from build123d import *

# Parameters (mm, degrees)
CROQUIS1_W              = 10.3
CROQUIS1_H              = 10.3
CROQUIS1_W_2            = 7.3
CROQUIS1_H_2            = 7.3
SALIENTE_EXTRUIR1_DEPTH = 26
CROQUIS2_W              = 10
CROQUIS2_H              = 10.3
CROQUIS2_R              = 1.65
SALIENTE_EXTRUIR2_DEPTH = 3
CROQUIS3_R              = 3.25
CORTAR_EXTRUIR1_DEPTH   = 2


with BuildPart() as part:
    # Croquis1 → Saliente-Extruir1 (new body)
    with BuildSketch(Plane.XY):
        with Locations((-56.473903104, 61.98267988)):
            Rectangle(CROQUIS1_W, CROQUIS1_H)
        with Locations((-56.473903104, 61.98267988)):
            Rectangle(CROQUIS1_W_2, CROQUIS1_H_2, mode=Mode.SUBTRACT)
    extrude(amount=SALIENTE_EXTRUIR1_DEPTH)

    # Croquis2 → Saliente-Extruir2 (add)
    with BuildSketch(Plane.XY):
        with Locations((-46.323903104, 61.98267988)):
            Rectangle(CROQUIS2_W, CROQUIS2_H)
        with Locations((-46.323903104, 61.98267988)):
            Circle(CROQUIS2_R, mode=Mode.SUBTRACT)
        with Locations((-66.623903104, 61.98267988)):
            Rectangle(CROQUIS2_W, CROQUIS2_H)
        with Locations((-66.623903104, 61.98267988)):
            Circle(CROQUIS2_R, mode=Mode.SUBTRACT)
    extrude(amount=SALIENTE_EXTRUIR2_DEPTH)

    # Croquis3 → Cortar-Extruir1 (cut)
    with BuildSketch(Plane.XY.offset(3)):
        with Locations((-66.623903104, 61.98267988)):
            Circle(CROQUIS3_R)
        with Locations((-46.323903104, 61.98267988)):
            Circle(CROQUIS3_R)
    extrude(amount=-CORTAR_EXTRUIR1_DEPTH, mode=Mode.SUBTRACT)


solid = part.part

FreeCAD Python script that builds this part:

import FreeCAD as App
import Part
import Sketcher

doc = App.newDocument("Part")
params = doc.addObject("Spreadsheet::Sheet", "Params")
for row, (alias, value) in enumerate([
    ("sketch1_width", "10.3 mm"),
    ("sketch1_width2", "7.3 mm"),
    ("pad1_length", "26 mm"),
    ("sketch2_diameter", "3.3 mm"),
    ("sketch2_width", "10 mm"),
    ("sketch2_height", "10.3 mm"),
    ("pad2_length", "3 mm"),
    ("sketch3_diameter", "6.5 mm"),
    ("pocket1_length", "2 mm"),
], start=1):
    params.set(f"A{row}", alias)
    params.set(f"B{row}", "=" + value)
    params.setAlias(f"B{row}", alias)

body = doc.addObject("PartDesign::Body", "Body")

sketch1 = body.newObject("Sketcher::SketchObject", "Sketch")
sketch1.AttachmentSupport = (doc.getObject("XY_Plane"), [""])
sketch1.MapMode = "FlatFace"
sketch1.addGeometry([
    Part.LineSegment(App.Vector(-61.623903, 67.13268, 0), App.Vector(-61.623903, 56.83268, 0)),
    Part.LineSegment(App.Vector(-61.623903, 56.83268, 0), App.Vector(-51.323903, 56.83268, 0)),
    Part.LineSegment(App.Vector(-51.323903, 56.83268, 0), App.Vector(-51.323903, 67.13268, 0)),
    Part.LineSegment(App.Vector(-51.323903, 67.13268, 0), App.Vector(-61.623903, 67.13268, 0)),
    Part.LineSegment(App.Vector(-52.823903, 58.33268, 0), App.Vector(-60.123903, 58.33268, 0)),
    Part.LineSegment(App.Vector(-60.123903, 58.33268, 0), App.Vector(-60.123903, 65.63268, 0)),
    Part.LineSegment(App.Vector(-60.123903, 65.63268, 0), App.Vector(-52.823903, 65.63268, 0)),
    Part.LineSegment(App.Vector(-52.823903, 65.63268, 0), App.Vector(-52.823903, 58.33268, 0)),
], False)
sketch1.addConstraint([
    Sketcher.Constraint("Coincident", 0, 2, 1, 1),
    Sketcher.Constraint("Coincident", 1, 2, 2, 1),
    Sketcher.Constraint("Coincident", 2, 2, 3, 1),
    Sketcher.Constraint("Coincident", 3, 2, 0, 1),
    Sketcher.Constraint("Coincident", 4, 2, 5, 1),
    Sketcher.Constraint("Coincident", 5, 2, 6, 1),
    Sketcher.Constraint("Coincident", 6, 2, 7, 1),
    Sketcher.Constraint("Coincident", 7, 2, 4, 1),
    Sketcher.Constraint("Vertical", 0),
    Sketcher.Constraint("Horizontal", 1),
    Sketcher.Constraint("Vertical", 2),
    Sketcher.Constraint("Horizontal", 3),
    Sketcher.Constraint("Horizontal", 4),
    Sketcher.Constraint("Vertical", 5),
    Sketcher.Constraint("Horizontal", 6),
    Sketcher.Constraint("Vertical", 7),
    Sketcher.Constraint("Equal", 3, 0),
    Sketcher.Constraint("Equal", 6, 5),
    Sketcher.Constraint("DistanceX", 1, 1, 1, 2, 10.3),
    Sketcher.Constraint("DistanceX", 4, 2, 4, 1, 7.3),
    Sketcher.Constraint("DistanceX", 0, 2, 4, 2, 1.5),
    Sketcher.Constraint("DistanceY", 0, 2, 4, 2, 1.5),
    Sketcher.Constraint("DistanceY", -1, 1, 0, 2, 56.83268),
    Sketcher.Constraint("DistanceX", 0, 2, -1, 1, 61.623903),
])
sketch1.setExpression("Constraints[18]", "Params.sketch1_width")
sketch1.setExpression("Constraints[19]", "Params.sketch1_width2")
pad1 = body.newObject("PartDesign::Pad", "Pad")
pad1.Profile = sketch1
pad1.setExpression("Length", "Params.pad1_length")

sketch2 = body.newObject("Sketcher::SketchObject", "Sketch001")
sketch2.AttachmentSupport = (doc.getObject("XY_Plane"), [""])
sketch2.MapMode = "FlatFace"
sketch2.addGeometry([
    Part.LineSegment(App.Vector(-51.323903, 67.13268, 0), App.Vector(-51.323903, 56.83268, 0)),
    Part.LineSegment(App.Vector(-51.323903, 56.83268, 0), App.Vector(-41.323903, 56.83268, 0)),
    Part.LineSegment(App.Vector(-41.323903, 56.83268, 0), App.Vector(-41.323903, 67.13268, 0)),
    Part.LineSegment(App.Vector(-41.323903, 67.13268, 0), App.Vector(-51.323903, 67.13268, 0)),
    Part.Circle(App.Vector(-46.323903, 61.98268, 0), App.Vector(0, 0, 1), 1.65),
    Part.LineSegment(App.Vector(-71.623903, 67.13268, 0), App.Vector(-71.623903, 56.83268, 0)),
    Part.LineSegment(App.Vector(-71.623903, 56.83268, 0), App.Vector(-61.623903, 56.83268, 0)),
    Part.LineSegment(App.Vector(-61.623903, 56.83268, 0), App.Vector(-61.623903, 67.13268, 0)),
    Part.LineSegment(App.Vector(-61.623903, 67.13268, 0), App.Vector(-71.623903, 67.13268, 0)),
    Part.Circle(App.Vector(-66.623903, 61.98268, 0), App.Vector(0, 0, 1), 1.65),
], False)
sketch2.addConstraint([
    Sketcher.Constraint("Coincident", 0, 2, 1, 1),
    Sketcher.Constraint("Coincident", 1, 2, 2, 1),
    Sketcher.Constraint("Coincident", 2, 2, 3, 1),
    Sketcher.Constraint("Coincident", 3, 2, 0, 1),
    Sketcher.Constraint("Coincident", 5, 2, 6, 1),
    Sketcher.Constraint("Coincident", 6, 2, 7, 1),
    Sketcher.Constraint("Coincident", 7, 2, 8, 1),
    Sketcher.Constraint("Coincident", 8, 2, 5, 1),
    Sketcher.Constraint("Vertical", 0),
    Sketcher.Constraint("Horizontal", 1),
    Sketcher.Constraint("Vertical", 2),
    Sketcher.Constraint("Horizontal", 3),
    Sketcher.Constraint("Vertical", 5),
    Sketcher.Constraint("Horizontal", 6),
    Sketcher.Constraint("Vertical", 7),
    Sketcher.Constraint("Horizontal", 8),
    Sketcher.Constraint("Equal", 4, 9),
    Sketcher.Constraint("Horizontal", 4, 3, 9, 3),
    Sketcher.Constraint("Horizontal", 1, 2, 5, 2),
    Sketcher.Constraint("Horizontal", 3, 2, 7, 2),
    Sketcher.Constraint("Equal", 3, 6),
    Sketcher.Constraint("Diameter", 4, 3.3),
    Sketcher.Constraint("DistanceX", 1, 1, 1, 2, 10.0),
    Sketcher.Constraint("DistanceY", 0, 2, 0, 1, 10.3),
    Sketcher.Constraint("DistanceX", 0, 2, 4, 3, 5.0),
    Sketcher.Constraint("DistanceX", 5, 2, 9, 3, 5.0),
    Sketcher.Constraint("DistanceX", 9, 3, 4, 3, 20.3),
    Sketcher.Constraint("DistanceY", 0, 2, 4, 3, 5.15),
    Sketcher.Constraint("DistanceY", -1, 1, 4, 3, 61.98268),
    Sketcher.Constraint("DistanceX", 4, 3, -1, 1, 46.323903),
])
sketch2.setExpression("Constraints[21]", "Params.sketch2_diameter")
sketch2.setExpression("Constraints[22]", "Params.sketch2_width")
sketch2.setExpression("Constraints[23]", "Params.sketch2_height")
pad2 = body.newObject("PartDesign::Pad", "Pad001")
pad2.Profile = sketch2
pad2.setExpression("Length", "Params.pad2_length")

sketch3 = body.newObject("Sketcher::SketchObject", "Sketch002")
sketch3.AttachmentSupport = (doc.getObject("XY_Plane"), [""])
sketch3.MapMode = "FlatFace"
sketch3.AttachmentOffset = App.Placement(App.Vector(0, 0, 3), App.Rotation())
sketch3.addGeometry([
    Part.Circle(App.Vector(-66.623903, 61.98268, 0), App.Vector(0, 0, 1), 3.25),
    Part.Circle(App.Vector(-46.323903, 61.98268, 0), App.Vector(0, 0, 1), 3.25),
], False)
sketch3.addConstraint([
    Sketcher.Constraint("Equal", 0, 1),
    Sketcher.Constraint("Horizontal", 0, 3, 1, 3),
    Sketcher.Constraint("Diameter", 0, 6.5),
    Sketcher.Constraint("DistanceX", 0, 3, 1, 3, 20.3),
    Sketcher.Constraint("DistanceY", -1, 1, 0, 3, 61.98268),
    Sketcher.Constraint("DistanceX", 0, 3, -1, 1, 66.623903),
])
sketch3.setExpression("Constraints[2]", "Params.sketch3_diameter")
pocket1 = body.newObject("PartDesign::Pocket", "Pocket")
pocket1.Profile = sketch3
pocket1.setExpression("Length", "Params.pocket1_length")

doc.recompute()
